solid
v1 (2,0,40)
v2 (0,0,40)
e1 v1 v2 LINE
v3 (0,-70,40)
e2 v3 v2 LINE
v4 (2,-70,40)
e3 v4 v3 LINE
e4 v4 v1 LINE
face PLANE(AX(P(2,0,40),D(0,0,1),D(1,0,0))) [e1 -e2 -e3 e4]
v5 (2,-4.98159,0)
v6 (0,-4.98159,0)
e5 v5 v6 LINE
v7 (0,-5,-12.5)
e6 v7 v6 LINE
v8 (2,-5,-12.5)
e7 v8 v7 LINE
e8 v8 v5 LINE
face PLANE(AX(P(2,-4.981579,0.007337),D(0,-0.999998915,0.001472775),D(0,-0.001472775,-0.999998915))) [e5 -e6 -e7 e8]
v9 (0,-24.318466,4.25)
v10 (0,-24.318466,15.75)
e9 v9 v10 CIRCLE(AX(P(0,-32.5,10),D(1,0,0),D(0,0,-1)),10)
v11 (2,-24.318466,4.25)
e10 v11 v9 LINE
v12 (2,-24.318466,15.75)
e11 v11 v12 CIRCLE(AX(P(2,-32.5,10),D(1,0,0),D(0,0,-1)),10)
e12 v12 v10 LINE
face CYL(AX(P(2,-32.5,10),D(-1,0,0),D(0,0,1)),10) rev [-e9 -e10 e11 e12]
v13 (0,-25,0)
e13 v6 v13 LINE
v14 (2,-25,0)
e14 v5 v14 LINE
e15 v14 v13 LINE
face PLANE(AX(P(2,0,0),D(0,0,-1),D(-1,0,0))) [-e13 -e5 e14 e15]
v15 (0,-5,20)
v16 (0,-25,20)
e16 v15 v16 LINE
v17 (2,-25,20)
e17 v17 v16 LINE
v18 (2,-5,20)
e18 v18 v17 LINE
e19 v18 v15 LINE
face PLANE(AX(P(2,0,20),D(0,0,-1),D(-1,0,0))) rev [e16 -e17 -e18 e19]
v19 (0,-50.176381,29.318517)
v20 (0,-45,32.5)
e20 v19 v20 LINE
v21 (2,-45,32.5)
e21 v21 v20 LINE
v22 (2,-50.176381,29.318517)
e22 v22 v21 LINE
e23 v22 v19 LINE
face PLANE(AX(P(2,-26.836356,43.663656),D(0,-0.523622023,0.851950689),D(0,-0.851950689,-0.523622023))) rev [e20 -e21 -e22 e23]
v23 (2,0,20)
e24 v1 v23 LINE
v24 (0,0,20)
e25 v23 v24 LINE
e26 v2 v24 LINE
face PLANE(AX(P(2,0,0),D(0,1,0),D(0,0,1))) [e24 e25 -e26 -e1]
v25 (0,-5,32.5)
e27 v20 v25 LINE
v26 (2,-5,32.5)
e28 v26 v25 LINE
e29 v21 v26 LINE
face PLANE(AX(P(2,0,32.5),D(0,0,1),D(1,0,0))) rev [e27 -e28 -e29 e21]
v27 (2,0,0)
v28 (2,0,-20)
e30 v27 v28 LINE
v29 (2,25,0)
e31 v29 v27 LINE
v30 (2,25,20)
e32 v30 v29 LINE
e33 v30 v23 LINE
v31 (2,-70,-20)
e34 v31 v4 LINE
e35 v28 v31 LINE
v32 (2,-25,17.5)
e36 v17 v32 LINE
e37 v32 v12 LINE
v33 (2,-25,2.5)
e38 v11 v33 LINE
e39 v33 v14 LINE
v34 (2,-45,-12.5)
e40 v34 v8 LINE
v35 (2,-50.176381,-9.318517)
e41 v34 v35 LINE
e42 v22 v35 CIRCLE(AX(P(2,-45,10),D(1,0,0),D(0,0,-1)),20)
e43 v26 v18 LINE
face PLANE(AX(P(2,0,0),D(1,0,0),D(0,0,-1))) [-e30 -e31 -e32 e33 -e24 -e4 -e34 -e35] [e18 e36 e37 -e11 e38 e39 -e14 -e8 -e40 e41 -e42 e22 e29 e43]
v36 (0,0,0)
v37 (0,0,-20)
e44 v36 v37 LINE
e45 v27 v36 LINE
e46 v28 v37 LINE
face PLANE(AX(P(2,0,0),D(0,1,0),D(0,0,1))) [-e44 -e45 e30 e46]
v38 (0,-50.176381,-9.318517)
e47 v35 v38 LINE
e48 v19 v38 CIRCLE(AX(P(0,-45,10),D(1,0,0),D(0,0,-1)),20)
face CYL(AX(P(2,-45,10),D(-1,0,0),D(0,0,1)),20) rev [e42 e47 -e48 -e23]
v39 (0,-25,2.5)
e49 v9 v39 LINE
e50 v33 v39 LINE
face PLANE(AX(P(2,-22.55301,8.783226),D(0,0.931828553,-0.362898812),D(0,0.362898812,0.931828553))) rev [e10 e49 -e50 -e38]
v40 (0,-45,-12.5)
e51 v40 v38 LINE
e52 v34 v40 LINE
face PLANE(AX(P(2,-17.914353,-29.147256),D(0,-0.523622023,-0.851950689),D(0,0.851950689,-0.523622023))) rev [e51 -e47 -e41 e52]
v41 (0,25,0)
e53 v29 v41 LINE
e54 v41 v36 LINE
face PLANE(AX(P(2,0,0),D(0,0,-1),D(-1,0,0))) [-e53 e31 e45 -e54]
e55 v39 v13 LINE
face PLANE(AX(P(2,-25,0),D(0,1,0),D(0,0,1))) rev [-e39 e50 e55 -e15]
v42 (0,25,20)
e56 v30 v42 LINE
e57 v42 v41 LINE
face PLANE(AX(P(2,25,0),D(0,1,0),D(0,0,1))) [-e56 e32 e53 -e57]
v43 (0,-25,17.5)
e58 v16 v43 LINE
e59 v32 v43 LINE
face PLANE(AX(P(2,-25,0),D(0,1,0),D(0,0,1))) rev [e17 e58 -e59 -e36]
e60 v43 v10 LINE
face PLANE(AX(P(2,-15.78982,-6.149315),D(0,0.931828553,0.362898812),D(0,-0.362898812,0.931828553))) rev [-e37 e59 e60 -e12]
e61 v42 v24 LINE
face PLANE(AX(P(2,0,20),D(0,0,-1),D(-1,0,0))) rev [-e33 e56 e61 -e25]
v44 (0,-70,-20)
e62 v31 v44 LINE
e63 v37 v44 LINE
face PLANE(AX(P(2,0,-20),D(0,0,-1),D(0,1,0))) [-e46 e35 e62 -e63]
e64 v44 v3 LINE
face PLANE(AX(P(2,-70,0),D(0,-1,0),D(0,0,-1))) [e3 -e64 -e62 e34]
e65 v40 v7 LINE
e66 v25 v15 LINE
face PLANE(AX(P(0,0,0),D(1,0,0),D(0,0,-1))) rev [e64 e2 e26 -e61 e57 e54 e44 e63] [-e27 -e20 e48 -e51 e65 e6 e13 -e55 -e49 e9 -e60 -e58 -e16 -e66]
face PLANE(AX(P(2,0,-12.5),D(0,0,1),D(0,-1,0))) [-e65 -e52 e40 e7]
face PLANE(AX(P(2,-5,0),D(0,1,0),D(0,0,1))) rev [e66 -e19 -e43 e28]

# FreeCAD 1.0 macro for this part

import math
import FreeCAD as App
import Part
import Sketcher

V = App.Vector
Q = App.Units.Quantity

doc = App.newDocument("Part")
body = doc.addObject("PartDesign::Body", "Body")

sketch1 = body.newObject("Sketcher::SketchObject", "Sketch")
sketch1.AttachmentSupport = (doc.getObject("YZ_Plane"), [""])
sketch1.MapMode = "FlatFace"
sketch1.addGeometry([
    Part.LineSegment(V(0, -20, 0), V(0, 0, 0)),
    Part.LineSegment(V(0, 0, 0), V(25, 0, 0)),
    Part.LineSegment(V(25, 0, 0), V(25, 20, 0)),
    Part.LineSegment(V(25, 20, 0), V(0, 20, 0)),
    Part.LineSegment(V(0, 20, 0), V(0, 40, 0)),
    Part.LineSegment(V(0, 40, 0), V(-70, 40, 0)),
    Part.LineSegment(V(-70, 40, 0), V(-70, -20, 0)),
    Part.LineSegment(V(-70, -20, 0), V(0, -20, 0)),
    Part.LineSegment(V(-45, -12.5, 0), V(-50.2, -9.3, 0)),
    Part.ArcOfCircle(Part.Circle(V(-45, 10, 0), V(0, 0, 1), 20), math.radians(105), math.radians(255)),
    Part.LineSegment(V(-50.2, 29.3, 0), V(-45, 32.5, 0)),
    Part.LineSegment(V(-45, 32.5, 0), V(-5, 32.5, 0)),
    Part.LineSegment(V(-5, 32.5, 0), V(-5, 20, 0)),
    Part.LineSegment(V(-5, 20, 0), V(-25, 20, 0)),
    Part.LineSegment(V(-25, 20, 0), V(-25, 17.5, 0)),
    Part.LineSegment(V(-25, 17.5, 0), V(-24.3, 15.8, 0)),
    Part.ArcOfCircle(Part.Circle(V(-32.5, 10, 0), V(0, 0, 1), 10), math.radians(-35), math.radians(35)),
    Part.LineSegment(V(-24.3, 4.2, 0), V(-25, 2.5, 0)),
    Part.LineSegment(V(-25, 2.5, 0), V(-25, 0, 0)),
    Part.LineSegment(V(-25, 0, 0), V(-5, 0, 0)),
    Part.LineSegment(V(-5, 0, 0), V(-5, -12.5, 0)),
    Part.LineSegment(V(-5, -12.5, 0), V(-45, -12.5, 0)),
], False)
sketch1.addConstraint([
    Sketcher.Constraint("Coincident", 0, 2, 1, 1),
    Sketcher.Constraint("Coincident", 1, 2, 2, 1),
    Sketcher.Constraint("Coincident", 2, 2, 3, 1),
    Sketcher.Constraint("Coincident", 3, 2, 4, 1),
    Sketcher.Constraint("Coincident", 4, 2, 5, 1),
    Sketcher.Constraint("Coincident", 5, 2, 6, 1),
    Sketcher.Constraint("Coincident", 6, 2, 7, 1),
    Sketcher.Constraint("Coincident", 7, 2, 0, 1),
    Sketcher.Constraint("Coincident", 8, 2, 9, 2),
    Sketcher.Constraint("Coincident", 9, 1, 10, 1),
    Sketcher.Constraint("Coincident", 10, 2, 11, 1),
    Sketcher.Constraint("Coincident", 11, 2, 12, 1),
    Sketcher.Constraint("Coincident", 12, 2, 13, 1),
    Sketcher.Constraint("Coincident", 13, 2, 14, 1),
    Sketcher.Constraint("Coincident", 14, 2, 15, 1),
    Sketcher.Constraint("Coincident", 15, 2, 16, 2),
    Sketcher.Constraint("Coincident", 16, 1, 17, 1),
    Sketcher.Constraint("Coincident", 17, 2, 18, 1),
    Sketcher.Constraint("Coincident", 18, 2, 19, 1),
    Sketcher.Constraint("Coincident", 19, 2, 20, 1),
    Sketcher.Constraint("Coincident", 20, 2, 21, 1),
    Sketcher.Constraint("Coincident", 21, 2, 8, 1),
    Sketcher.Constraint("Vertical", 0),
    Sketcher.Constraint("Horizontal", 1),
    Sketcher.Constraint("Vertical", 2),
    Sketcher.Constraint("Horizontal", 3),
    Sketcher.Constraint("Vertical", 4),
    Sketcher.Constraint("Horizontal", 5),
    Sketcher.Constraint("Vertical", 6),
    Sketcher.Constraint("Horizontal", 7),
    Sketcher.Constraint("Horizontal", 11),
    Sketcher.Constraint("Vertical", 12),
    Sketcher.Constraint("Horizontal", 13),
    Sketcher.Constraint("Vertical", 14),
    Sketcher.Constraint("Vertical", 18),
    Sketcher.Constraint("Horizontal", 19),
    Sketcher.Constraint("Horizontal", 21),
    Sketcher.Constraint("Coincident", 0, 2, -1, 1),
    Sketcher.Constraint("Symmetric", 3, 2, 7, 2, -1, 1),
    Sketcher.Constraint("Symmetric", 1, 2, 18, 2, -1, 1),
    Sketcher.Constraint("Symmetric", 2, 2, 13, 2, -2),
    Sketcher.Constraint("Horizontal", 9, 3, 16, 3),
    Sketcher.Constraint("Vertical", 8, 2, 9, 1),
    Sketcher.Constraint("Vertical", 9, 3, 10, 2),
    Sketcher.Constraint("Vertical", 15, 2, 16, 1),
    Sketcher.Constraint("Vertical", 12, 2, 20, 2),
    Sketcher.Constraint("Vertical", 10, 2, 21, 2),
    Sketcher.Constraint("Equal", 13, 0),
    Sketcher.Constraint("Equal", 2, 4),
    Sketcher.Constraint("Equal", 14, 18),
    Sketcher.Constraint("Equal", 8, 10),
    Sketcher.Constraint("Equal", 15, 17),
    Sketcher.Constraint("Radius", 9, Q("20 mm")),
    Sketcher.Constraint("Radius", 16, Q("10 mm")),
    Sketcher.Constraint("DistanceX", 1, 1, 1, 2, Q("25 mm")),
    Sketcher.Constraint("DistanceX", 5, 2, 5, 1, Q("70 mm")),
    Sketcher.Constraint("DistanceX", 11, 1, 11, 2, Q("40 mm")),
    Sketcher.Constraint("DistanceX", 13, 2, 13, 1, Q("20 mm")),
    Sketcher.Constraint("DistanceY", 12, 2, 12, 1, Q("12.5 mm")),
    Sketcher.Constraint("DistanceY", 14, 2, 14, 1, Q("2.5 mm")),
    Sketcher.Constraint("DistanceX", 16, 3, -1, 1, Q("32.5 mm")),
    Sketcher.Constraint("DistanceY", 16, 1, 15, 2, Q("11.5 mm")),
    Sketcher.Constraint("DistanceX", 19, 1, 19, 2, Q("20.01841 mm")),
    Sketcher.Constraint("DistanceX", 8, 2, -1, 1, Q("50.176381 mm")),
])
pad1 = body.newObject("PartDesign::Pad", "Pad")
pad1.Profile = sketch1
pad1.Length = 2

doc.recompute()
